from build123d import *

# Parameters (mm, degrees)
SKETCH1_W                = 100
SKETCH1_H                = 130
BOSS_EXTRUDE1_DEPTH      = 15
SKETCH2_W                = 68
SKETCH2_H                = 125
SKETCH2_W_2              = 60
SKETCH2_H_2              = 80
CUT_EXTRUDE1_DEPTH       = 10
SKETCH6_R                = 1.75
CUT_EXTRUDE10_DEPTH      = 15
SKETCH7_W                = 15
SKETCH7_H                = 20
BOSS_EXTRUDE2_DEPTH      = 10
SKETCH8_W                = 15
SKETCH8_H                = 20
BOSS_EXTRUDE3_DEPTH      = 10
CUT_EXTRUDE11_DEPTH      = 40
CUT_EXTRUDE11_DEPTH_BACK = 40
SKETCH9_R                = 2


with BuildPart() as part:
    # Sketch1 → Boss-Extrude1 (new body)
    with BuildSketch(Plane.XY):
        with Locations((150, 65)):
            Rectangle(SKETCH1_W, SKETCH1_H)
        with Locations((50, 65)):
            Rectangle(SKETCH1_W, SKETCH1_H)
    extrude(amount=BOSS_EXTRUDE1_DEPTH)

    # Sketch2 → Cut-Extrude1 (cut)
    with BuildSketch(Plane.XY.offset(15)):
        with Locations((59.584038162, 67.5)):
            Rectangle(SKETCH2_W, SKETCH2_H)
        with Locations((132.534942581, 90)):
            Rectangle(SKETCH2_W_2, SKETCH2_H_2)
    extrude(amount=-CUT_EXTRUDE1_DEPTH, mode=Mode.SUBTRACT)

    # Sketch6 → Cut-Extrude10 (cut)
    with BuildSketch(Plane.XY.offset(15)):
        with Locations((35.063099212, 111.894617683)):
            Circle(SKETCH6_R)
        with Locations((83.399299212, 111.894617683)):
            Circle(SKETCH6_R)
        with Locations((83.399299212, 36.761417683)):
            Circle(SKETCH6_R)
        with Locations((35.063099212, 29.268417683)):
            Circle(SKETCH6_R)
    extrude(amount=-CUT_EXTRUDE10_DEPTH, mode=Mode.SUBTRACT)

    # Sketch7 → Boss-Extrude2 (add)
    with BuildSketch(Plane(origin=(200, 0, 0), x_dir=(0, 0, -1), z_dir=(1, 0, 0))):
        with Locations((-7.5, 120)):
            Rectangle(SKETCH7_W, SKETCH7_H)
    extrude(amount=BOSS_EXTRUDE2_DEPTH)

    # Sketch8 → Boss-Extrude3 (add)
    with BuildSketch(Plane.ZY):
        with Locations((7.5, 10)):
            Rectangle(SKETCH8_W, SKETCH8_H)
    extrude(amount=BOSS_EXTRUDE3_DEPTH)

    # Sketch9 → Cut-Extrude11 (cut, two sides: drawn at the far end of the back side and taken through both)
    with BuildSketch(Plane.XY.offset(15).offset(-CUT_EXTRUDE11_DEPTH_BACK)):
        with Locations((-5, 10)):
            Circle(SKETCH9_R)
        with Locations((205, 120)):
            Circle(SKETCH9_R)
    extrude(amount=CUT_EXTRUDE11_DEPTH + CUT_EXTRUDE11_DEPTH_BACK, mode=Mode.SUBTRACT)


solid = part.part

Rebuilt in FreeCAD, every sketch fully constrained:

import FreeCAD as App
import Part
import Sketcher

V = App.Vector


def add_polygon(sketch, points):
    """Adds a closed chain of lines whose ends are joined by coincident constraints."""
    first, n = sketch.GeometryCount, len(points)
    for a, b in zip(points, points[1:] + points[:1]):
        sketch.addGeometry(Part.LineSegment(App.Vector(*a, 0), App.Vector(*b, 0)), False)
    for i in range(n):
        sketch.addConstraint(Sketcher.Constraint("Coincident", first + i, 2, first + (i + 1) % n, 1))

doc = App.newDocument("Part")
body = doc.addObject("PartDesign::Body", "Body")

# Sketch on XY plane
sketch1 = body.newObject("Sketcher::SketchObject", "Sketch")
sketch1.AttachmentSupport = (doc.getObject("XY_Plane"), [""])
sketch1.MapMode = "FlatFace"
add_polygon(sketch1, [(200, 0), (200, 130), (0, 130), (0, 0)])  # lines 0-3
sketch1.addConstraint(Sketcher.Constraint("Vertical", 0))
sketch1.addConstraint(Sketcher.Constraint("Horizontal", 1))
sketch1.addConstraint(Sketcher.Constraint("Vertical", 2))
sketch1.addConstraint(Sketcher.Constraint("Horizontal", 3))
sketch1.addConstraint(Sketcher.Constraint("Coincident", 2, 2, -1, 1))
sketch1.addConstraint(Sketcher.Constraint("DistanceX", 1, 2, 1, 1, 200.0))
sketch1.addConstraint(Sketcher.Constraint("DistanceY", 0, 1, 0, 2, 130.0))
pad1 = body.newObject("PartDesign::Pad", "Pad")
pad1.Profile = sketch1
pad1.Length = 15

# Sketch on XY plane
sketch2 = body.newObject("Sketcher::SketchObject", "Sketch001")
sketch2.AttachmentSupport = (doc.getObject("XY_Plane"), [""])
sketch2.MapMode = "FlatFace"
sketch2.AttachmentOffset = App.Placement(V(0, 0, 15), App.Rotation())
add_polygon(sketch2, [(26, 130), (26, 5), (94, 5), (94, 130)])  # lines 0-3
add_polygon(sketch2, [(103, 130), (103, 50), (163, 50), (163, 130)])  # lines 4-7
sketch2.addConstraint(Sketcher.Constraint("Vertical", 0))
sketch2.addConstraint(Sketcher.Constraint("Horizontal", 1))
sketch2.addConstraint(Sketcher.Constraint("Vertical", 2))
sketch2.addConstraint(Sketcher.Constraint("Horizontal", 3))
sketch2.addConstraint(Sketcher.Constraint("Vertical", 4))
sketch2.addConstraint(Sketcher.Constraint("Horizontal", 5))
sketch2.addConstraint(Sketcher.Constraint("Vertical", 6))
sketch2.addConstraint(Sketcher.Constraint("Horizontal", 7))
sketch2.addConstraint(Sketcher.Constraint("Horizontal", 3, 2, 6, 2))
sketch2.addConstraint(Sketcher.Constraint("DistanceX", 1, 1, 1, 2, 68.0))
sketch2.addConstraint(Sketcher.Constraint("DistanceX", 5, 1, 5, 2, 60.0))
sketch2.addConstraint(Sketcher.Constraint("DistanceY", 0, 2, 0, 1, 125.0))
sketch2.addConstraint(Sketcher.Constraint("DistanceY", 4, 2, 4, 1, 80.0))
sketch2.addConstraint(Sketcher.Constraint("DistanceY", -1, 1, 0, 2, 5.0))
sketch2.addConstraint(Sketcher.Constraint("DistanceX", -1, 1, 0, 2, 25.584038))
sketch2.addConstraint(Sketcher.Constraint("DistanceX", -1, 1, 4, 2, 102.534943))
pocket1 = body.newObject("PartDesign::Pocket", "Pocket")
pocket1.Profile = sketch2
pocket1.Length = 10

# Sketch on XY plane
sketch3 = body.newObject("Sketcher::SketchObject", "Sketch002")
sketch3.AttachmentSupport = (doc.getObject("XY_Plane"), [""])
sketch3.MapMode = "FlatFace"
sketch3.AttachmentOffset = App.Placement(V(0, 0, 15), App.Rotation())
sketch3.addGeometry(Part.Circle(V(35.1, 111.9, 0), V(0, 0, 1), 1.8), False)
sketch3.addGeometry(Part.Circle(V(83.4, 111.9, 0), V(0, 0, 1), 1.8), False)
sketch3.addGeometry(Part.Circle(V(83.4, 36.8, 0), V(0, 0, 1), 1.8), False)
sketch3.addGeometry(Part.Circle(V(35.1, 29.3, 0), V(0, 0, 1), 1.8), False)
sketch3.addConstraint(Sketcher.Constraint("Equal", 0, 1))
sketch3.addConstraint(Sketcher.Constraint("Equal", 1, 2))
sketch3.addConstraint(Sketcher.Constraint("Equal", 2, 3))
sketch3.addConstraint(Sketcher.Constraint("Horizontal", 0, 3, 1, 3))
sketch3.addConstraint(Sketcher.Constraint("Vertical", 1, 3, 2, 3))
sketch3.addConstraint(Sketcher.Constraint("Vertical", 0, 3, 3, 3))
sketch3.addConstraint(Sketcher.Constraint("Diameter", 0, 3.5))
sketch3.addConstraint(Sketcher.Constraint("DistanceY", 3, 3, 2, 3, 7.493))
sketch3.addConstraint(Sketcher.Constraint("DistanceX", -1, 1, 0, 3, 35.063099))
sketch3.addConstraint(Sketcher.Constraint("DistanceX", -1, 1, 1, 3, 83.399299))
sketch3.addConstraint(Sketcher.Constraint("DistanceY", 2, 3, 1, 3, 75.1332))
sketch3.addConstraint(Sketcher.Constraint("DistanceY", -1, 1, 0, 3, 111.894618))
pocket2 = body.newObject("PartDesign::Pocket", "Pocket001")
pocket2.Profile = sketch3
pocket2.Length = 15

# Sketch on YZ plane
sketch4 = body.newObject("Sketcher::SketchObject", "Sketch003")
sketch4.AttachmentSupport = (doc.getObject("YZ_Plane"), [""])
sketch4.MapMode = "FlatFace"
sketch4.AttachmentOffset = App.Placement(V(0, 0, 200), App.Rotation())
add_polygon(sketch4, [(130, 15), (110, 15), (110, 0), (130, 0)])  # lines 0-3
sketch4.addConstraint(Sketcher.Constraint("Horizontal", 0))
sketch4.addConstraint(Sketcher.Constraint("Vertical", 1))
sketch4.addConstraint(Sketcher.Constraint("Horizontal", 2))
sketch4.addConstraint(Sketcher.Constraint("Vertical", 3))
sketch4.addConstraint(Sketcher.Constraint("PointOnObject", 1, 2, -1))
sketch4.addConstraint(Sketcher.Constraint("DistanceX", 0, 2, 0, 1, 20.0))
sketch4.addConstraint(Sketcher.Constraint("DistanceY", 1, 2, 1, 1, 15.0))
sketch4.addConstraint(Sketcher.Constraint("DistanceX", -1, 1, 0, 2, 110.0))
pad2 = body.newObject("PartDesign::Pad", "Pad001")
pad2.Profile = sketch4
pad2.Length = 10

# Sketch on YZ plane
sketch5 = body.newObject("Sketcher::SketchObject", "Sketch004")
sketch5.AttachmentSupport = (doc.getObject("YZ_Plane"), [""])
sketch5.MapMode = "FlatFace"
add_polygon(sketch5, [(20, 0), (0, 0), (0, 15), (20, 15)])  # lines 0-3
sketch5.addConstraint(Sketcher.Constraint("Horizontal", 0))
sketch5.addConstraint(Sketcher.Constraint("Vertical", 1))
sketch5.addConstraint(Sketcher.Constraint("Horizontal", 2))
sketch5.addConstraint(Sketcher.Constraint("Vertical", 3))
sketch5.addConstraint(Sketcher.Constraint("Coincident", 0, 2, -1, 1))
sketch5.addConstraint(Sketcher.Constraint("DistanceX", 0, 2, 0, 1, 20.0))
sketch5.addConstraint(Sketcher.Constraint("DistanceY", 1, 1, 1, 2, 15.0))
pad3 = body.newObject("PartDesign::Pad", "Pad002")
pad3.Profile = sketch5
pad3.Length = 10
pad3.Reversed = True

# Sketch on XY plane
sketch6 = body.newObject("Sketcher::SketchObject", "Sketch005")
sketch6.AttachmentSupport = (doc.getObject("XY_Plane"), [""])
sketch6.MapMode = "FlatFace"
sketch6.AttachmentOffset = App.Placement(V(0, 0, 15), App.Rotation())
sketch6.addGeometry(Part.Circle(V(-5, 10, 0), V(0, 0, 1), 2), False)
sketch6.addGeometry(Part.Circle(V(205, 120, 0), V(0, 0, 1), 2), False)
sketch6.addConstraint(Sketcher.Constraint("Equal", 0, 1))
sketch6.addConstraint(Sketcher.Constraint("Diameter", 0, 4.0))
sketch6.addConstraint(Sketcher.Constraint("DistanceX", 0, 3, -1, 1, 5.0))
sketch6.addConstraint(Sketcher.Constraint("DistanceY", -1, 1, 0, 3, 10.0))
sketch6.addConstraint(Sketcher.Constraint("DistanceX", -1, 1, 1, 3, 205.0))
sketch6.addConstraint(Sketcher.Constraint("DistanceY", -1, 1, 1, 3, 120.0))
pocket3 = body.newObject("PartDesign::Pocket", "Pocket002")
pocket3.Profile = sketch6
pocket3.Type = "ThroughAll"
pocket3.Midplane = True

doc.recompute()
